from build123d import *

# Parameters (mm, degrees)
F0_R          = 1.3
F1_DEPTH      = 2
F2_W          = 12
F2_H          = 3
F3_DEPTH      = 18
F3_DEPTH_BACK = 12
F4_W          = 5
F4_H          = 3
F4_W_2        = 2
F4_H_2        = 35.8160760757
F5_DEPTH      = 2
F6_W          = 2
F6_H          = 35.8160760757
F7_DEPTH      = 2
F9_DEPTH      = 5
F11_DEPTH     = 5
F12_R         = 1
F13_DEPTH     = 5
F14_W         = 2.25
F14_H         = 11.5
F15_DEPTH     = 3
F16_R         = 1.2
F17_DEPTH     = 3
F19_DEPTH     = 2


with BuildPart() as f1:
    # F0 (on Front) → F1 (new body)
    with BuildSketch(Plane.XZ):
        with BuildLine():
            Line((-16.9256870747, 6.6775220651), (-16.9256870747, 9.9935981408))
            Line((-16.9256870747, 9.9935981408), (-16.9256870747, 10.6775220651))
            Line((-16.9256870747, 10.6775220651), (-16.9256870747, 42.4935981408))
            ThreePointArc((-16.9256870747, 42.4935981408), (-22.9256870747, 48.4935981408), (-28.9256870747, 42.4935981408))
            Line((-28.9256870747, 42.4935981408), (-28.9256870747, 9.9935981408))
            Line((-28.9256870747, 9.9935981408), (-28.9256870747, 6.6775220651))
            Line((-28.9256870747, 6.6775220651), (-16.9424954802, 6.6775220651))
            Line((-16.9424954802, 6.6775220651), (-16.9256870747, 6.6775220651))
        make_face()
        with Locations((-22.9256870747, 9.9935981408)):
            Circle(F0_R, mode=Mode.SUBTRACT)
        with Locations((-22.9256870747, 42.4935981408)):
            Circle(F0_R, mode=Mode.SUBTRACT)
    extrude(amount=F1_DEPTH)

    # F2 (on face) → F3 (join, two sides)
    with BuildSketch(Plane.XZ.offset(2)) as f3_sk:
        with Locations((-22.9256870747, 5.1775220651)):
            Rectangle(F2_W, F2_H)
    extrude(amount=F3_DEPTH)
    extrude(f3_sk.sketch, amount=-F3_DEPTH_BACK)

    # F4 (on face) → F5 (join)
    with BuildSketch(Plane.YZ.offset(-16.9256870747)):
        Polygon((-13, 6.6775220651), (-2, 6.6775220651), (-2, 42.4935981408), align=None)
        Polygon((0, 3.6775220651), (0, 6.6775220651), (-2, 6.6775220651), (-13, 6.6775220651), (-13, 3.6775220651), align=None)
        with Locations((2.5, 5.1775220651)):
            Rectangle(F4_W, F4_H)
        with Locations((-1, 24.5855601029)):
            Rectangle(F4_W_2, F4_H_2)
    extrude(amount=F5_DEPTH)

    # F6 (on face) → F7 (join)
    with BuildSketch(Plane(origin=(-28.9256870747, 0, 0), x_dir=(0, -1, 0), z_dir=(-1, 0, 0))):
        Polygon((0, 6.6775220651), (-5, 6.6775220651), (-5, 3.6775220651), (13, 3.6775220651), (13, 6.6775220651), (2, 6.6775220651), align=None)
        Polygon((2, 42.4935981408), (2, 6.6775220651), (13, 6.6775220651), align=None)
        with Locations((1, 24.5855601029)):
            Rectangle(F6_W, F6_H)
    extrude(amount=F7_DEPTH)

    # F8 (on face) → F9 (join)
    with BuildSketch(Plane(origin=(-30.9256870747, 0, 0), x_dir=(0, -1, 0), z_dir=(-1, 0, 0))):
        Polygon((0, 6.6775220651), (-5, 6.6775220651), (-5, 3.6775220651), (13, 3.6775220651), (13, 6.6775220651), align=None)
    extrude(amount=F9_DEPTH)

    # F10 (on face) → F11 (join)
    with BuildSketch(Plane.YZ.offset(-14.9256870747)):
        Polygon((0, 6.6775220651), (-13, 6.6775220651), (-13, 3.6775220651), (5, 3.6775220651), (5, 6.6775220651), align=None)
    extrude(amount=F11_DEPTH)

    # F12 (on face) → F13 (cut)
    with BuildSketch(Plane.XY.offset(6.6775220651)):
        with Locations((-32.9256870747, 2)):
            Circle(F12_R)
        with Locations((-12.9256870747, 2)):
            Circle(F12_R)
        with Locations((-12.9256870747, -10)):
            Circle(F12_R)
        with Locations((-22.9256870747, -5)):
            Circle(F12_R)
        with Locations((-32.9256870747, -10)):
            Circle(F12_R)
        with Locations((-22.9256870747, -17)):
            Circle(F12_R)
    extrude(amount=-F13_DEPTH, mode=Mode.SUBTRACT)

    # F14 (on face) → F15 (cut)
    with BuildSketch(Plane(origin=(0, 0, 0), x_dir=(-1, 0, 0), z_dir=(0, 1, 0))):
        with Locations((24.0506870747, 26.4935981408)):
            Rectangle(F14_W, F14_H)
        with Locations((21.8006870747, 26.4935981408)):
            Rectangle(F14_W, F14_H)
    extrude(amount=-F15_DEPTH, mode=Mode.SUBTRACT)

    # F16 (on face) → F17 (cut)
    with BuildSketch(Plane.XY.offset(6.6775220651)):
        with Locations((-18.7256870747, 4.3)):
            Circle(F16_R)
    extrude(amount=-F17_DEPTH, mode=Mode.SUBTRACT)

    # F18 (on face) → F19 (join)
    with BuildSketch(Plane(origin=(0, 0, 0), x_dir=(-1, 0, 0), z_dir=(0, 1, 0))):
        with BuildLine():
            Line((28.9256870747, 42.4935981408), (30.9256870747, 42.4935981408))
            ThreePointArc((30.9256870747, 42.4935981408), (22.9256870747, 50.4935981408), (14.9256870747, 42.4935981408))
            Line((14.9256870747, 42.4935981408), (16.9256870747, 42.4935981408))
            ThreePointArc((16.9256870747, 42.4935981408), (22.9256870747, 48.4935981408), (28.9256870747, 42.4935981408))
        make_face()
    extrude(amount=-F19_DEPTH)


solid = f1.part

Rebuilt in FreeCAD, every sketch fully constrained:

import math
import FreeCAD as App
import Part
import Sketcher
from FreeCAD import Vector
Q = App.Units.Quantity


def add_polygon(sketch, points):
    """Adds a closed chain of lines whose ends are joined by coincident constraints."""
    first, n = sketch.GeometryCount, len(points)
    for a, b in zip(points, points[1:] + points[:1]):
        sketch.addGeometry(Part.LineSegment(App.Vector(*a, 0), App.Vector(*b, 0)), False)
    for i in range(n):
        sketch.addConstraint(Sketcher.Constraint("Coincident", first + i, 2, first + (i + 1) % n, 1))

doc = App.newDocument("Part")
body = doc.addObject("PartDesign::Body", "Body")

sketch1 = body.newObject("Sketcher::SketchObject", "Sketch")
sketch1.AttachmentSupport = (doc.getObject("XZ_Plane"), [""])
sketch1.MapMode = "FlatFace"
sketch1.addGeometry(Part.LineSegment(Vector(-16.9, 6.7, 0), Vector(-16.9, 42.5, 0)), False)
sketch1.addGeometry(Part.ArcOfCircle(Part.Circle(Vector(-22.9, 42.5, 0), Vector(0, 0, 1), 6), math.radians(0), math.radians(180)), False)
sketch1.addGeometry(Part.LineSegment(Vector(-28.9, 42.5, 0), Vector(-28.9, 6.7, 0)), False)
sketch1.addGeometry(Part.LineSegment(Vector(-28.9, 6.7, 0), Vector(-16.9, 6.7, 0)), False)
sketch1.addGeometry(Part.Circle(Vector(-22.9, 10, 0), Vector(0, 0, 1), 1.3), False)
sketch1.addGeometry(Part.Circle(Vector(-22.9, 42.5, 0), Vector(0, 0, 1), 1.3), False)
sketch1.addConstraint(Sketcher.Constraint("Tangent", 0, 2, 1, 1))
sketch1.addConstraint(Sketcher.Constraint("Tangent", 1, 2, 2, 1))
sketch1.addConstraint(Sketcher.Constraint("Coincident", 2, 2, 3, 1))
sketch1.addConstraint(Sketcher.Constraint("Coincident", 3, 2, 0, 1))
sketch1.addConstraint(Sketcher.Constraint("Vertical", 0))
sketch1.addConstraint(Sketcher.Constraint("Vertical", 2))
sketch1.addConstraint(Sketcher.Constraint("Horizontal", 3))
sketch1.addConstraint(Sketcher.Constraint("Coincident", 5, 3, 1, 3))
sketch1.addConstraint(Sketcher.Constraint("Equal", 4, 5))
sketch1.addConstraint(Sketcher.Constraint("Vertical", 1, 3, 4, 3))
sketch1.addConstraint(Sketcher.Constraint("Radius", 1, Q("6 mm")))
sketch1.addConstraint(Sketcher.Constraint("Diameter", 4, Q("2.6 mm")))
sketch1.addConstraint(Sketcher.Constraint("DistanceY", 4, 3, 1, 3, Q("32.5 mm")))
sketch1.addConstraint(Sketcher.Constraint("DistanceY", -1, 1, 1, 3, Q("42.493598 mm")))
sketch1.addConstraint(Sketcher.Constraint("DistanceY", 0, 1, 0, 2, Q("35.816076 mm")))
sketch1.addConstraint(Sketcher.Constraint("DistanceX", 1, 3, -1, 1, Q("22.925687 mm")))
pad1 = body.newObject("PartDesign::Pad", "Pad")
pad1.Profile = sketch1
pad1.Length = 2

sketch2 = body.newObject("Sketcher::SketchObject", "Sketch001")
sketch2.AttachmentSupport = (doc.getObject("XZ_Plane"), [""])
sketch2.MapMode = "FlatFace"
sketch2.AttachmentOffset = App.Placement(Vector(0, 0, 2), App.Rotation())
add_polygon(sketch2, [(-28.9, 6.7), (-28.9, 3.7), (-16.9, 3.7), (-16.9, 6.7)])
sketch2.addConstraint(Sketcher.Constraint("Vertical", 0))
sketch2.addConstraint(Sketcher.Constraint("Horizontal", 1))
sketch2.addConstraint(Sketcher.Constraint("Vertical", 2))
sketch2.addConstraint(Sketcher.Constraint("Horizontal", 3))
sketch2.addConstraint(Sketcher.Constraint("DistanceX", 1, 1, 1, 2, Q("12 mm")))
sketch2.addConstraint(Sketcher.Constraint("DistanceY", 0, 2, 0, 1, Q("3 mm")))
sketch2.addConstraint(Sketcher.Constraint("DistanceX", 0, 2, -1, 1, Q("28.925687 mm")))
sketch2.addConstraint(Sketcher.Constraint("DistanceY", -1, 1, 0, 2, Q("3.677522 mm")))
pad2 = body.newObject("PartDesign::Pad", "Pad001")
pad2.Profile = sketch2
pad2.Type = "TwoLengths"
pad2.Length = 18
pad2.Length2 = 12

sketch3 = body.newObject("Sketcher::SketchObject", "Sketch002")
sketch3.AttachmentSupport = (doc.getObject("YZ_Plane"), [""])
sketch3.MapMode = "FlatFace"
sketch3.AttachmentOffset = App.Placement(Vector(0, 0, -16.925687), App.Rotation())
add_polygon(sketch3, [(-2, 42.5), (-13, 6.7), (-13, 3.7), (5, 3.7), (5, 6.7), (0, 6.7), (0, 42.5)])
sketch3.addConstraint(Sketcher.Constraint("Vertical", 1))
sketch3.addConstraint(Sketcher.Constraint("Horizontal", 2))
sketch3.addConstraint(Sketcher.Constraint("Vertical", 3))
sketch3.addConstraint(Sketcher.Constraint("Horizontal", 4))
sketch3.addConstraint(Sketcher.Constraint("Vertical", 5))
sketch3.addConstraint(Sketcher.Constraint("Horizontal", 6))
sketch3.addConstraint(Sketcher.Constraint("PointOnObject", 4, 2, -2))
sketch3.addConstraint(Sketcher.Constraint("Horizontal", 0, 2, 3, 2))
sketch3.addConstraint(Sketcher.Constraint("DistanceX", 2, 1, 2, 2, Q("18 mm")))
sketch3.addConstraint(Sketcher.Constraint("DistanceX", 4, 2, 4, 1, Q("5 mm")))
sketch3.addConstraint(Sketcher.Constraint("DistanceX", 6, 2, 6, 1, Q("2 mm")))
sketch3.addConstraint(Sketcher.Constraint("DistanceY", 1, 2, 1, 1, Q("3 mm")))
sketch3.addConstraint(Sketcher.Constraint("DistanceY", -1, 1, 5, 2, Q("42.493598 mm")))
sketch3.addConstraint(Sketcher.Constraint("DistanceY", 5, 1, 5, 2, Q("35.816076 mm")))
pad3 = body.newObject("PartDesign::Pad", "Pad002")
pad3.Profile = sketch3
pad3.Length = 2

sketch4 = body.newObject("Sketcher::SketchObject", "Sketch003")
sketch4.AttachmentSupport = (doc.getObject("YZ_Plane"), [""])
sketch4.MapMode = "FlatFace"
sketch4.AttachmentOffset = App.Placement(Vector(0, 0, -28.925687), App.Rotation())
add_polygon(sketch4, [(5, 6.7), (5, 3.7), (-13, 3.7), (-13, 6.7), (-2, 42.5), (0, 42.5), (0, 6.7)])
sketch4.addConstraint(Sketcher.Constraint("Vertical", 0))
sketch4.addConstraint(Sketcher.Constraint("Horizontal", 1))
sketch4.addConstraint(Sketcher.Constraint("Vertical", 2))
sketch4.addConstraint(Sketcher.Constraint("Horizontal", 4))
sketch4.addConstraint(Sketcher.Constraint("Vertical", 5))
sketch4.addConstraint(Sketcher.Constraint("Horizontal", 6))
sketch4.addConstraint(Sketcher.Constraint("PointOnObject", 4, 2, -2))
sketch4.addConstraint(Sketcher.Constraint("Horizontal", 2, 2, 5, 2))
sketch4.addConstraint(Sketcher.Constraint("DistanceX", 1, 2, 1, 1, Q("18 mm")))
sketch4.addConstraint(Sketcher.Constraint("DistanceX", 4, 1, 4, 2, Q("2 mm")))
sketch4.addConstraint(Sketcher.Constraint("DistanceX", 6, 1, 6, 2, Q("5 mm")))
sketch4.addConstraint(Sketcher.Constraint("DistanceY", 0, 2, 0, 1, Q("3 mm")))
sketch4.addConstraint(Sketcher.Constraint("DistanceY", -1, 1, 3, 2, Q("42.493598 mm")))
sketch4.addConstraint(Sketcher.Constraint("DistanceY", 5, 2, 5, 1, Q("35.816076 mm")))
pad4 = body.newObject("PartDesign::Pad", "Pad003")
pad4.Profile = sketch4
pad4.Length = 2
pad4.Reversed = True

sketch5 = body.newObject("Sketcher::SketchObject", "Sketch004")
sketch5.AttachmentSupport = (doc.getObject("YZ_Plane"), [""])
sketch5.MapMode = "FlatFace"
sketch5.AttachmentOffset = App.Placement(Vector(0, 0, -30.925687), App.Rotation())
add_polygon(sketch5, [(5, 6.7), (5, 3.7), (-13, 3.7), (-13, 6.7)])
sketch5.addConstraint(Sketcher.Constraint("Vertical", 0))
sketch5.addConstraint(Sketcher.Constraint("Horizontal", 1))
sketch5.addConstraint(Sketcher.Constraint("Vertical", 2))
sketch5.addConstraint(Sketcher.Constraint("Horizontal", 3))
sketch5.addConstraint(Sketcher.Constraint("DistanceX", 1, 2, 1, 1, Q("18 mm")))
sketch5.addConstraint(Sketcher.Constraint("DistanceY", 0, 2, 0, 1, Q("3 mm")))
sketch5.addConstraint(Sketcher.Constraint("DistanceX", -1, 1, 0, 2, Q("5 mm")))
sketch5.addConstraint(Sketcher.Constraint("DistanceY", -1, 1, 0, 2, Q("3.677522 mm")))
pad5 = body.newObject("PartDesign::Pad", "Pad004")
pad5.Profile = sketch5
pad5.Length = 5
pad5.Reversed = True

sketch6 = body.newObject("Sketcher::SketchObject", "Sketch005")
sketch6.AttachmentSupport = (doc.getObject("YZ_Plane"), [""])
sketch6.MapMode = "FlatFace"
sketch6.AttachmentOffset = App.Placement(Vector(0, 0, -14.925687), App.Rotation())
add_polygon(sketch6, [(-13, 6.7), (-13, 3.7), (5, 3.7), (5, 6.7)])
sketch6.addConstraint(Sketcher.Constraint("Vertical", 0))
sketch6.addConstraint(Sketcher.Constraint("Horizontal", 1))
sketch6.addConstraint(Sketcher.Constraint("Vertical", 2))
sketch6.addConstraint(Sketcher.Constraint("Horizontal", 3))
sketch6.addConstraint(Sketcher.Constraint("DistanceX", 1, 1, 1, 2, Q("18 mm")))
sketch6.addConstraint(Sketcher.Constraint("DistanceY", 0, 2, 0, 1, Q("3 mm")))
sketch6.addConstraint(Sketcher.Constraint("DistanceX", 0, 2, -1, 1, Q("13 mm")))
sketch6.addConstraint(Sketcher.Constraint("DistanceY", -1, 1, 0, 2, Q("3.677522 mm")))
pad6 = body.newObject("PartDesign::Pad", "Pad005")
pad6.Profile = sketch6
pad6.Length = 5

sketch7 = body.newObject("Sketcher::SketchObject", "Sketch006")
sketch7.AttachmentSupport = (doc.getObject("XY_Plane"), [""])
sketch7.MapMode = "FlatFace"
sketch7.AttachmentOffset = App.Placement(Vector(0, 0, 6.677522), App.Rotation())
sketch7.addGeometry(Part.Circle(Vector(-32.9, 2, 0), Vector(0, 0, 1), 1), False)
sketch7.addGeometry(Part.Circle(Vector(-12.9, 2, 0), Vector(0, 0, 1), 1), False)
sketch7.addGeometry(Part.Circle(Vector(-12.9, -10, 0), Vector(0, 0, 1), 1), False)
sketch7.addGeometry(Part.Circle(Vector(-22.9, -5, 0), Vector(0, 0, 1), 1), False)
sketch7.addGeometry(Part.Circle(Vector(-32.9, -10, 0), Vector(0, 0, 1), 1), False)
sketch7.addGeometry(Part.Circle(Vector(-22.9, -17, 0), Vector(0, 0, 1), 1), False)
sketch7.addConstraint(Sketcher.Constraint("Equal", 0, 1))
sketch7.addConstraint(Sketcher.Constraint("Equal", 1, 2))
sketch7.addConstraint(Sketcher.Constraint("Equal", 2, 3))
sketch7.addConstraint(Sketcher.Constraint("Equal", 3, 4))
sketch7.addConstraint(Sketcher.Constraint("Equal", 4, 5))
sketch7.addConstraint(Sketcher.Constraint("Horizontal", 0, 3, 1, 3))
sketch7.addConstraint(Sketcher.Constraint("Horizontal", 2, 3, 4, 3))
sketch7.addConstraint(Sketcher.Constraint("Vertical", 1, 3, 2, 3))
sketch7.addConstraint(Sketcher.Constraint("Vertical", 0, 3, 4, 3))
sketch7.addConstraint(Sketcher.Constraint("Vertical", 3, 3, 5, 3))
sketch7.addConstraint(Sketcher.Constraint("Diameter", 0, Q("2 mm")))
sketch7.addConstraint(Sketcher.Constraint("DistanceY", -1, 1, 0, 3, Q("2 mm")))
sketch7.addConstraint(Sketcher.Constraint("DistanceY", 2, 3, -1, 1, Q("10 mm")))
sketch7.addConstraint(Sketcher.Constraint("DistanceY", 3, 3, -1, 1, Q("5 mm")))
sketch7.addConstraint(Sketcher.Constraint("DistanceY", 5, 3, -1, 1, Q("17 mm")))
sketch7.addConstraint(Sketcher.Constraint("DistanceX", 0, 3, 1, 3, Q("20 mm")))
sketch7.addConstraint(Sketcher.Constraint("DistanceX", 3, 3, 2, 3, Q("10 mm")))
sketch7.addConstraint(Sketcher.Constraint("DistanceX", 0, 3, -1, 1, Q("32.925687 mm")))
pocket1 = body.newObject("PartDesign::Pocket", "Pocket")
pocket1.Profile = sketch7
pocket1.Length = 5

sketch8 = body.newObject("Sketcher::SketchObject", "Sketch007")
sketch8.AttachmentSupport = (doc.getObject("XZ_Plane"), [""])
sketch8.MapMode = "FlatFace"
add_polygon(sketch8, [(-25.2, 20.7), (-25.2, 32.2), (-20.7, 32.2), (-20.7, 20.7)])
sketch8.addConstraint(Sketcher.Constraint("Vertical", 0))
sketch8.addConstraint(Sketcher.Constraint("Horizontal", 1))
sketch8.addConstraint(Sketcher.Constraint("Vertical", 2))
sketch8.addConstraint(Sketcher.Constraint("Horizontal", 3))
sketch8.addConstraint(Sketcher.Constraint("DistanceX", 1, 1, 1, 2, Q("4.5 mm")))
sketch8.addConstraint(Sketcher.Constraint("DistanceY", 0, 1, 0, 2, Q("11.5 mm")))
sketch8.addConstraint(Sketcher.Constraint("DistanceY", -1, 1, 0, 2, Q("32.243598 mm")))
sketch8.addConstraint(Sketcher.Constraint("DistanceX", 0, 2, -1, 1, Q("25.175687 mm")))
pocket2 = body.newObject("PartDesign::Pocket", "Pocket001")
pocket2.Profile = sketch8
pocket2.Length = 3
pocket2.Reversed = True

sketch9 = body.newObject("Sketcher::SketchObject", "Sketch008")
sketch9.AttachmentSupport = (doc.getObject("XY_Plane"), [""])
sketch9.MapMode = "FlatFace"
sketch9.AttachmentOffset = App.Placement(Vector(0, 0, 6.677522), App.Rotation())
sketch9.addGeometry(Part.Circle(Vector(-18.7, 4.3, 0), Vector(0, 0, 1), 1.2), False)
sketch9.addConstraint(Sketcher.Constraint("Diameter", 0, Q("2.4 mm")))
sketch9.addConstraint(Sketcher.Constraint("DistanceY", -1, 1, 0, 3, Q("4.3 mm")))
sketch9.addConstraint(Sketcher.Constraint("DistanceX", 0, 3, -1, 1, Q("18.725687 mm")))
pocket3 = body.newObject("PartDesign::Pocket", "Pocket002")
pocket3.Profile = sketch9
pocket3.Length = 3

sketch10 = body.newObject("Sketcher::SketchObject", "Sketch009")
sketch10.AttachmentSupport = (doc.getObject("XZ_Plane"), [""])
sketch10.MapMode = "FlatFace"
sketch10.addGeometry(Part.LineSegment(Vector(-28.9, 42.5, 0), Vector(-30.9, 42.5, 0)), False)
sketch10.addGeometry(Part.ArcOfCircle(Part.Circle(Vector(-22.9, 42.5, 0), Vector(0, 0, 1), 8), math.radians(0), math.radians(180)), False)
sketch10.addGeometry(Part.LineSegment(Vector(-14.9, 42.5, 0), Vector(-16.9, 42.5, 0)), False)
sketch10.addGeometry(Part.ArcOfCircle(Part.Circle(Vector(-22.9, 42.5, 0), Vector(0, 0, 1), 6), math.radians(0), math.radians(180)), False)
sketch10.addConstraint(Sketcher.Constraint("Coincident", 0, 2, 1, 2))
sketch10.addConstraint(Sketcher.Constraint("Coincident", 1, 1, 2, 1))
sketch10.addConstraint(Sketcher.Constraint("Coincident", 2, 2, 3, 1))
sketch10.addConstraint(Sketcher.Constraint("Coincident", 3, 2, 0, 1))
sketch10.addConstraint(Sketcher.Constraint("Horizontal", 0))
sketch10.addConstraint(Sketcher.Constraint("Horizontal", 2))
sketch10.addConstraint(Sketcher.Constraint("Coincident", 3, 3, 1, 3))
sketch10.addConstraint(Sketcher.Constraint("Horizontal", 3, 3, 0, 2))
sketch10.addConstraint(Sketcher.Constraint("Horizontal", 0, 2, 1, 1))
sketch10.addConstraint(Sketcher.Constraint("Radius", 1, Q("8 mm")))
sketch10.addConstraint(Sketcher.Constraint("Radius", 3, Q("6 mm")))
sketch10.addConstraint(Sketcher.Constraint("DistanceY", -1, 1, 1, 3, Q("42.493598 mm")))
sketch10.addConstraint(Sketcher.Constraint("DistanceX", 1, 3, -1, 1, Q("22.925687 mm")))
pad7 = body.newObject("PartDesign::Pad", "Pad006")
pad7.Profile = sketch10
pad7.Length = 2

doc.recompute()
